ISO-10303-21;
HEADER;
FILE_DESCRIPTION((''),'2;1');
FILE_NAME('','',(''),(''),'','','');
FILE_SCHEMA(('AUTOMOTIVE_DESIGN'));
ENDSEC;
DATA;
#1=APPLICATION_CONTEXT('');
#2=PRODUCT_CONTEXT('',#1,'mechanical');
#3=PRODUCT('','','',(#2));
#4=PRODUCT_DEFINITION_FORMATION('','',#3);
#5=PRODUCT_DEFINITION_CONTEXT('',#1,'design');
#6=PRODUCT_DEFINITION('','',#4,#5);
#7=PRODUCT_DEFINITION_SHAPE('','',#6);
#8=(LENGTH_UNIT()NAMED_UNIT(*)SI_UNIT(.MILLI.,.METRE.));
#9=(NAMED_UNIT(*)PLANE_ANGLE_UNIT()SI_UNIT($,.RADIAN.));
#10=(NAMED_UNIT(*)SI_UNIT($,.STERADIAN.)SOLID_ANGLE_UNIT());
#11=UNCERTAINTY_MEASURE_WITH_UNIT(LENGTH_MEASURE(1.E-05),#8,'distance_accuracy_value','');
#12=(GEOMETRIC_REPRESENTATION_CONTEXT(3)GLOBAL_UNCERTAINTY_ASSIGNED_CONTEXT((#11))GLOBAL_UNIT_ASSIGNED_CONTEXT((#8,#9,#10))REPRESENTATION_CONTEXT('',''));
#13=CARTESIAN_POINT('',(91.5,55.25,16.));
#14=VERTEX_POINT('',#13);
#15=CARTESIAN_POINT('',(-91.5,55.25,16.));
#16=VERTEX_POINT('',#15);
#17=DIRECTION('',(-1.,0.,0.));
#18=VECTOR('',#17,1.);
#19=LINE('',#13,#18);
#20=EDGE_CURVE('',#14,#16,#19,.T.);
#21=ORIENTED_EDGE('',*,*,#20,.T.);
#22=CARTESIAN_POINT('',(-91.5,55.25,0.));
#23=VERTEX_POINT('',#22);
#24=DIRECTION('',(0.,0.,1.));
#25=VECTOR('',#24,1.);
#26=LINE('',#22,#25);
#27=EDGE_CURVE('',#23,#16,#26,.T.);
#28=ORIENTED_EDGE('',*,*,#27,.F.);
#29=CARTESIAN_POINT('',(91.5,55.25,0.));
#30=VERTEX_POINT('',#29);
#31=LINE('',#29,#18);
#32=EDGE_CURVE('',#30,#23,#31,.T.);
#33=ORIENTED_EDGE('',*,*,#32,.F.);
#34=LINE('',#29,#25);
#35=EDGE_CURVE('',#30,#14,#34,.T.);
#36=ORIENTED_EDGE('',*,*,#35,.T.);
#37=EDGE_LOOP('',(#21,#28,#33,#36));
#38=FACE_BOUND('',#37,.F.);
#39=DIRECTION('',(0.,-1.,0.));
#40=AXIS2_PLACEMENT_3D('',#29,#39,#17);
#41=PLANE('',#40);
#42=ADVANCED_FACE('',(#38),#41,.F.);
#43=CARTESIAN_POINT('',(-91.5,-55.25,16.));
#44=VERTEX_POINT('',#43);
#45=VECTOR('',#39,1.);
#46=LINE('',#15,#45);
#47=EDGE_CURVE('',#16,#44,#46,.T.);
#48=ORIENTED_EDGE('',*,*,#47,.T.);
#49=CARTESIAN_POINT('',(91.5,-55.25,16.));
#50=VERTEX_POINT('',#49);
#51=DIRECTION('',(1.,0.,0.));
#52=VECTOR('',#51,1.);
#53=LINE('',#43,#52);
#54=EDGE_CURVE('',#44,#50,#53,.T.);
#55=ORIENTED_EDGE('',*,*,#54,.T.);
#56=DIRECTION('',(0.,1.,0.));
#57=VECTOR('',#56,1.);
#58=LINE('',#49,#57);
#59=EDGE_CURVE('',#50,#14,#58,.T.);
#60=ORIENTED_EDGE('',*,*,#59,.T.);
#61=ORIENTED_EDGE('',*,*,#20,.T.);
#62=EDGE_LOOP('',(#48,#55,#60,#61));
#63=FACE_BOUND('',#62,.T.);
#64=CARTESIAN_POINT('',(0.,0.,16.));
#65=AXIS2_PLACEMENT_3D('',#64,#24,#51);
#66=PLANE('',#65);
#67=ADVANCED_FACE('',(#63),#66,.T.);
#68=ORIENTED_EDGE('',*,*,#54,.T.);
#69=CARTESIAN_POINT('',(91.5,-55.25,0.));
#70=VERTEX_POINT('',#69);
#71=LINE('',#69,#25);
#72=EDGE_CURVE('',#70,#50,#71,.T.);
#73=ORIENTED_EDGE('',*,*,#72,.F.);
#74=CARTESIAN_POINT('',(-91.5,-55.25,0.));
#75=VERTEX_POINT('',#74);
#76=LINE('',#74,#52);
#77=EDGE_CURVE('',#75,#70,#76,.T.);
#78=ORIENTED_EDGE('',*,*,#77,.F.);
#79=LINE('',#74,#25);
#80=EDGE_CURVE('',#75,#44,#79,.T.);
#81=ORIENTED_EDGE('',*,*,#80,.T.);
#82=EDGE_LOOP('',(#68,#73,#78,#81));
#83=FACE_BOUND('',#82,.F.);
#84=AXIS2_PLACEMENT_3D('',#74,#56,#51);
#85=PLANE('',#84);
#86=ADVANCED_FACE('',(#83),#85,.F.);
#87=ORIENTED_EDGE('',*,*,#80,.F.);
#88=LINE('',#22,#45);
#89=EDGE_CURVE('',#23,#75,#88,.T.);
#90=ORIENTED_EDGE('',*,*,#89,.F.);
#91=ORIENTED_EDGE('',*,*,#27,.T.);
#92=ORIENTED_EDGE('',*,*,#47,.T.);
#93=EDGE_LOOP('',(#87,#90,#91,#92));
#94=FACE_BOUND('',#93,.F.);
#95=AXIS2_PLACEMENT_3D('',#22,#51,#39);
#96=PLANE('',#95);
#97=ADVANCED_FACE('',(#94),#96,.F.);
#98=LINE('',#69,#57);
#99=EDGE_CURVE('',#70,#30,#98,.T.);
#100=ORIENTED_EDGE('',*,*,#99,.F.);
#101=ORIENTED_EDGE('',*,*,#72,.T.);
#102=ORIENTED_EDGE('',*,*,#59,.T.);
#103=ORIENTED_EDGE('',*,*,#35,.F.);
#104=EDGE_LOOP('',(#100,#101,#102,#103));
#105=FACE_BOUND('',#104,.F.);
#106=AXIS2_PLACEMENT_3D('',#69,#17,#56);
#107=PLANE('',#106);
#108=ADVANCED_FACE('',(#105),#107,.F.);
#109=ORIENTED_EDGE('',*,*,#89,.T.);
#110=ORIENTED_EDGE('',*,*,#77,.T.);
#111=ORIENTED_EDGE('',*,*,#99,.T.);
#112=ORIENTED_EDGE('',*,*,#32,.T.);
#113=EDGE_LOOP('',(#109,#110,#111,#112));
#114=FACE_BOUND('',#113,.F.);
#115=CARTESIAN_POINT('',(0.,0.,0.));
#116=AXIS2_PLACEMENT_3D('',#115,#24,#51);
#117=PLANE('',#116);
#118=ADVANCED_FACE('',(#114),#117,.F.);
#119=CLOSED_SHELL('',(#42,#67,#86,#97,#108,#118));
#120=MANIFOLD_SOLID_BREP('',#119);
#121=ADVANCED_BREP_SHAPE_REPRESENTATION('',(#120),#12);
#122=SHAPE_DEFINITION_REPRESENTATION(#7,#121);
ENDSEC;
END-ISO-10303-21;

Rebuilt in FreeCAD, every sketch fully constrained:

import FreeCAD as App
import Part
import Sketcher
from FreeCAD import Vector
Q = App.Units.Quantity


def add_polygon(sketch, points):
    """Adds a closed chain of lines whose ends are joined by coincident constraints."""
    first, n = sketch.GeometryCount, len(points)
    for a, b in zip(points, points[1:] + points[:1]):
        sketch.addGeometry(Part.LineSegment(App.Vector(*a, 0), App.Vector(*b, 0)), False)
    for i in range(n):
        sketch.addConstraint(Sketcher.Constraint("Coincident", first + i, 2, first + (i + 1) % n, 1))

doc = App.newDocument("Part")
body = doc.addObject("PartDesign::Body", "Body")

sketch1 = body.newObject("Sketcher::SketchObject", "Sketch")
sketch1.AttachmentSupport = (doc.getObject("XY_Plane"), [""])
sketch1.MapMode = "FlatFace"
add_polygon(sketch1, [(-92, 55), (-92, -55), (92, -55), (92, 55)])
sketch1.addConstraint([
    Sketcher.Constraint("Vertical", 0),
    Sketcher.Constraint("Horizontal", 1),
    Sketcher.Constraint("Vertical", 2),
    Sketcher.Constraint("Horizontal", 3),
    Sketcher.Constraint("Symmetric", 0, 2, 2, 2, -1, 1),
    Sketcher.Constraint("DistanceX", 1, 1, 1, 2, Q("183 mm")),
    Sketcher.Constraint("DistanceY", 0, 2, 0, 1, Q("110.5 mm")),
])
pad1 = body.newObject("PartDesign::Pad", "Pad")
pad1.Profile = sketch1
pad1.Length = 16

doc.recompute()
